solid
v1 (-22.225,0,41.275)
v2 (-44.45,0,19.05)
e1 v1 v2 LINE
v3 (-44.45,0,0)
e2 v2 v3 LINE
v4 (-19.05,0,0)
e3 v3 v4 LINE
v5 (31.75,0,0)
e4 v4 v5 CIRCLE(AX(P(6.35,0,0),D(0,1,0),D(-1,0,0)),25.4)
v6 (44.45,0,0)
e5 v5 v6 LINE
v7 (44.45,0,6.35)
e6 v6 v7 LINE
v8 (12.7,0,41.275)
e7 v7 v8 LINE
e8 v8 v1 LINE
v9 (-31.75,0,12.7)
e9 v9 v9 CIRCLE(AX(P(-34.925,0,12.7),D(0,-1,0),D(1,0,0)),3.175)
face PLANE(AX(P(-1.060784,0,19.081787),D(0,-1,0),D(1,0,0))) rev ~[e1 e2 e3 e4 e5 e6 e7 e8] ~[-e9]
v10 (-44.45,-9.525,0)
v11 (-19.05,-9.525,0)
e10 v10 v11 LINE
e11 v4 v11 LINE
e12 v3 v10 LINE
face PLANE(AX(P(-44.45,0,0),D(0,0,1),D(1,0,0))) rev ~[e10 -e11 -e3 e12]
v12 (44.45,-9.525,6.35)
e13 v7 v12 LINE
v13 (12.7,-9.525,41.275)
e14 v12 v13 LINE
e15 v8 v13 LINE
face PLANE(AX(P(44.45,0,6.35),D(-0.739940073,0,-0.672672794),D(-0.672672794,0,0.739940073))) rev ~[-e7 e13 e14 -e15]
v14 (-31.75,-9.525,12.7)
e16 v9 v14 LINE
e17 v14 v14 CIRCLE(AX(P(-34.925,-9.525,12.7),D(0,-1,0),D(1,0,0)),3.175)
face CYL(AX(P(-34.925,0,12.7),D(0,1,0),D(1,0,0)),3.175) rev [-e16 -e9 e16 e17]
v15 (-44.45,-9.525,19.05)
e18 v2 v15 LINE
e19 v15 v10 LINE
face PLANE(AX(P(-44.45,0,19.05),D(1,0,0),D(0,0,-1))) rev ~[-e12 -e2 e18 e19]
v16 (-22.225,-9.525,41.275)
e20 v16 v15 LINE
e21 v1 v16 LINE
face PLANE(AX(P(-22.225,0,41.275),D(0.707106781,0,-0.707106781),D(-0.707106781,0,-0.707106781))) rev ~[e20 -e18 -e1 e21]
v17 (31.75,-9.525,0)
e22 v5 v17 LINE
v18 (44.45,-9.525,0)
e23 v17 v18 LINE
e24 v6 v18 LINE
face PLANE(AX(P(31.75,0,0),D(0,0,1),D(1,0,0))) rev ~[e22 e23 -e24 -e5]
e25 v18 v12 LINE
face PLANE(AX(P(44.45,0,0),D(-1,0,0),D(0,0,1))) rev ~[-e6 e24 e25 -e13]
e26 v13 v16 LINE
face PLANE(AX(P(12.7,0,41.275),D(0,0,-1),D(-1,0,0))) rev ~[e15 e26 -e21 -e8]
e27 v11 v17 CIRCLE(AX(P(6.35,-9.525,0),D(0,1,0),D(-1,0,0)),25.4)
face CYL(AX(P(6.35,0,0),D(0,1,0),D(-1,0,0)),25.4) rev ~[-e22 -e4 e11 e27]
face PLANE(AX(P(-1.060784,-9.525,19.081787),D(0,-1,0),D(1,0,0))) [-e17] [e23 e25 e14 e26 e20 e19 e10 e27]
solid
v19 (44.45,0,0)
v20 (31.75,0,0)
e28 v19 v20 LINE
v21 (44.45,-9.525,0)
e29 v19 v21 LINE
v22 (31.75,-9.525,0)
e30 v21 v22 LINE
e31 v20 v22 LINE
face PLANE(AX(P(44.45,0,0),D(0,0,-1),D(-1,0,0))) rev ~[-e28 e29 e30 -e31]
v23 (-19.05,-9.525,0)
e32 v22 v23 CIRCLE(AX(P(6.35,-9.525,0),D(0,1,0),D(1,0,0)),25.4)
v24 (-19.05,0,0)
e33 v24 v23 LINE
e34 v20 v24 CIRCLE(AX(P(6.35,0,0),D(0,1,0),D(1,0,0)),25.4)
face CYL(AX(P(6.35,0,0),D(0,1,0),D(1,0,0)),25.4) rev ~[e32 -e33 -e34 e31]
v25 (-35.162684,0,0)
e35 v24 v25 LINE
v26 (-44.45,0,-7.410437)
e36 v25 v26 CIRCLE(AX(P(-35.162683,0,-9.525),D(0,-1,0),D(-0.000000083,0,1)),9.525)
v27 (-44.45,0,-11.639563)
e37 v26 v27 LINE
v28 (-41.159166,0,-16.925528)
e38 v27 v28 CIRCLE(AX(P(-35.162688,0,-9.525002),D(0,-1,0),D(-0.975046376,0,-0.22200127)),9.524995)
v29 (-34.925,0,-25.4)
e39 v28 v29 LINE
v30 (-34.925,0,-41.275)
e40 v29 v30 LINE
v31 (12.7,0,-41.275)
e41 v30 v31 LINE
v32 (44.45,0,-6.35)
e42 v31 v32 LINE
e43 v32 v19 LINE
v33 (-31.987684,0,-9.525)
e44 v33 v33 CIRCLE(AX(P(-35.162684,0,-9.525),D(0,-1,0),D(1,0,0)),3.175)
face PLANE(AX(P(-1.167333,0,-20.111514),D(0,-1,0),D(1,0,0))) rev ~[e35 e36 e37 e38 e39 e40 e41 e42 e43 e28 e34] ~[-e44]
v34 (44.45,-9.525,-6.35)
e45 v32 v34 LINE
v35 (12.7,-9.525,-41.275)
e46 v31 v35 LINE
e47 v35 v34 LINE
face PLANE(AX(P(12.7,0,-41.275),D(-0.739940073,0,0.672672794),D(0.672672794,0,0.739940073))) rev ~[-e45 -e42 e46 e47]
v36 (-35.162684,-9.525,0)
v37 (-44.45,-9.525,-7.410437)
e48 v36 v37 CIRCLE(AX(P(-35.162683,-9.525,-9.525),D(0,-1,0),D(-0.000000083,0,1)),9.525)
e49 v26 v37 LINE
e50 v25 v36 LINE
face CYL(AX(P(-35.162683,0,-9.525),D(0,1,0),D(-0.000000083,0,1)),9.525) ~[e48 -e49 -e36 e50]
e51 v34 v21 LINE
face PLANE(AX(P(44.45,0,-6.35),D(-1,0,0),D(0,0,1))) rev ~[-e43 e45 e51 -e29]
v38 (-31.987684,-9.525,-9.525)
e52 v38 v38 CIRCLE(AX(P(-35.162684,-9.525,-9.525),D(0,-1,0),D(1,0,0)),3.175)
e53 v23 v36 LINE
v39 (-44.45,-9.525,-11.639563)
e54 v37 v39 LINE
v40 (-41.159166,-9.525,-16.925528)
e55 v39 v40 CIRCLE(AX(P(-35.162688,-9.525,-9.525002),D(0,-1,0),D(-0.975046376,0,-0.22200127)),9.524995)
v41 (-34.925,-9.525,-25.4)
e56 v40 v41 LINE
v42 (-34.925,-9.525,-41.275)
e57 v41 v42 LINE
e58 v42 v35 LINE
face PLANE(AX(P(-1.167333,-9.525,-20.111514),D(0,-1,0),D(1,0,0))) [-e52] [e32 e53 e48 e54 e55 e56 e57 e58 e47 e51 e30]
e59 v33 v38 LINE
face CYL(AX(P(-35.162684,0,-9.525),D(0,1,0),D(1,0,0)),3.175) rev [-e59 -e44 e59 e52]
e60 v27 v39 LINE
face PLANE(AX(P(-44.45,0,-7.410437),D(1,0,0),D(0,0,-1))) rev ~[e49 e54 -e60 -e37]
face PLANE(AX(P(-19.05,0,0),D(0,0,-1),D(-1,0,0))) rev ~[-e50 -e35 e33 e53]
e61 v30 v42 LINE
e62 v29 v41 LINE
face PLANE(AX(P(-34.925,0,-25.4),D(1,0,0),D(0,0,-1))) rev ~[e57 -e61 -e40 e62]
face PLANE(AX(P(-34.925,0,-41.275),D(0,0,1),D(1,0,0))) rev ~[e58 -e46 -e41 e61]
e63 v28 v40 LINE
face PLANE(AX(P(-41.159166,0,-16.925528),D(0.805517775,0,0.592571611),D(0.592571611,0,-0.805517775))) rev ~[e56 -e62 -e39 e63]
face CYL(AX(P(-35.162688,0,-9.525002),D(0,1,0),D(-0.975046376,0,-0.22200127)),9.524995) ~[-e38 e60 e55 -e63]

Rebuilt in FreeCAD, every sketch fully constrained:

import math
import FreeCAD as App
import Part
import Sketcher

V = App.Vector
Q = App.Units.Quantity

doc = App.newDocument("Part")
params = doc.addObject("Spreadsheet::Sheet", "Params")
for row, (alias, value) in enumerate([
    ("sketch1_radius", "1 in"),
    ("sketch1_diameter", "0.25 in"),
    ("sketch1_width", "1 in"),
    ("sketch1_width2", "0.5 in"),
    ("sketch1_height", "0.75 in"),
    ("pad1_length", "0.375 in"),
    ("sketch2_radius", "1 in"),
    ("sketch2_diameter", "0.25 in"),
    ("sketch2_width", "0.5 in"),
    ("sketch2_radius2", "0.375 in"),
    ("sketch2_radius3", "0.3749998 in"),
    ("pad2_length", "0.375 in"),
], start=1):
    params.set(f"A{row}", alias)
    params.set(f"B{row}", "=" + value)
    params.setAlias(f"B{row}", alias)

body = doc.addObject("PartDesign::Body", "Body")

# Sketch on XZ plane
sketch1 = doc.addObject("Sketcher::SketchObject", "Sketch")
body.addObject(sketch1)
sketch1.AttachmentSupport = (doc.XZ_Plane, [""])
sketch1.MapMode = "FlatFace"
sketch1.addGeometry([
    Part.LineSegment(V(12.7, 41.275, 0), V(-22.225, 41.275, 0)),  # 0
    Part.LineSegment(V(-22.225, 41.275, 0), V(-44.45, 19.05, 0)),  # 1
    Part.LineSegment(V(-44.45, 19.05, 0), V(-44.45, 0, 0)),  # 2
    Part.LineSegment(V(-44.45, 0, 0), V(-19.05, 0, 0)),  # 3
    Part.ArcOfCircle(Part.Circle(V(6.35, 0, 0), V(0, 0, 1), 25.4), math.radians(0), math.radians(180)),  # 4
    Part.LineSegment(V(31.75, 0, 0), V(44.45, 0, 0)),  # 5
    Part.LineSegment(V(44.45, 0, 0), V(44.45, 6.35, 0)),  # 6
    Part.LineSegment(V(44.45, 6.35, 0), V(12.7, 41.275, 0)),  # 7
    Part.Circle(V(-34.925, 12.7, 0), V(0, 0, 1), 3.175),  # 8
], False)
sketch1.addConstraint([
    Sketcher.Constraint("Coincident", 0, 2, 1, 1),
    Sketcher.Constraint("Coincident", 1, 2, 2, 1),
    Sketcher.Constraint("Coincident", 2, 2, 3, 1),
    Sketcher.Constraint("Coincident", 3, 2, 4, 2),
    Sketcher.Constraint("Coincident", 4, 1, 5, 1),
    Sketcher.Constraint("Coincident", 5, 2, 6, 1),
    Sketcher.Constraint("Coincident", 6, 2, 7, 1),
    Sketcher.Constraint("Coincident", 7, 2, 0, 1),
    Sketcher.Constraint("Horizontal", 0),
    Sketcher.Constraint("Vertical", 2),
    Sketcher.Constraint("Horizontal", 3),
    Sketcher.Constraint("Horizontal", 5),
    Sketcher.Constraint("Vertical", 6),
    Sketcher.Constraint("Symmetric", 2, 2, 5, 2, -1, 1),
    Sketcher.Constraint("PointOnObject", 4, 3, -1),
    Sketcher.Constraint("PointOnObject", 2, 2, -1),
    Sketcher.Constraint("Radius", 4, Q("1 in")),
    Sketcher.Constraint("Diameter", 8, Q("0.25 in")),
    Sketcher.Constraint("DistanceX", 3, 1, 3, 2, Q("1 in")),
    Sketcher.Constraint("DistanceX", 5, 1, 5, 2, Q("0.5 in")),
    Sketcher.Constraint("Angle", 1, Q("-135 deg")),
    Sketcher.Constraint("DistanceY", 2, 2, 2, 1, Q("0.75 in")),
    Sketcher.Constraint("DistanceY", 6, 1, 6, 2, Q("0.25 in")),
    Sketcher.Constraint("DistanceY", -1, 1, 8, 3, Q("0.5 in")),
    Sketcher.Constraint("DistanceX", -1, 1, 7, 2, Q("0.5 in")),
    Sketcher.Constraint("DistanceX", 8, 3, 0, 2, Q("0.5 in")),
    Sketcher.Constraint("DistanceX", 0, 2, 0, 1, Q("1.375 in")),
])
sketch1.setExpression("Constraints[16]", "Params.sketch1_radius")
sketch1.setExpression("Constraints[17]", "Params.sketch1_diameter")
sketch1.setExpression("Constraints[18]", "Params.sketch1_width")
sketch1.setExpression("Constraints[19]", "Params.sketch1_width2")
sketch1.setExpression("Constraints[21]", "Params.sketch1_height")
pad1 = doc.addObject("PartDesign::Pad", "Pad")
body.addObject(pad1)
pad1.Profile = sketch1
pad1.setExpression("Length", "Params.pad1_length")
body2 = doc.addObject("PartDesign::Body", "Body001")

# Sketch on XZ plane
sketch2 = doc.addObject("Sketcher::SketchObject", "Sketch001")
body2.addObject(sketch2)
sketch2.AttachmentSupport = (doc.getObject("XZ_Plane001"), [""])
sketch2.MapMode = "FlatFace"
sketch2.addGeometry([
    Part.LineSegment(V(44.45, -6.35, 0), V(44.45, 0, 0)),  # 0
    Part.LineSegment(V(44.45, 0, 0), V(31.75, 0, 0)),  # 1
    Part.ArcOfCircle(Part.Circle(V(6.35, 0, 0), V(0, 0, 1), 25.4), math.radians(180), math.radians(360)),  # 2
    Part.LineSegment(V(-19.05, 0, 0), V(-35.162684, 0, 0)),  # 3
    Part.ArcOfCircle(Part.Circle(V(-35.162683, -9.525, 0), V(0, 0, 1), 9.525), math.radians(90.000005), math.radians(167.173388)),  # 4
    Part.LineSegment(V(-44.45, -7.410437, 0), V(-44.45, -11.639563, 0)),  # 5
    Part.ArcOfCircle(Part.Circle(V(-35.162688, -9.525002, 0), V(0, 0, 1), 9.524995), math.radians(-167.173396), math.radians(-129.017065)),  # 6
    Part.LineSegment(V(-41.159166, -16.925528, 0), V(-34.925, -25.4, 0)),  # 7
    Part.LineSegment(V(-34.925, -25.4, 0), V(-34.925, -41.275, 0)),  # 8
    Part.LineSegment(V(-34.925, -41.275, 0), V(12.7, -41.275, 0)),  # 9
    Part.LineSegment(V(12.7, -41.275, 0), V(44.45, -6.35, 0)),  # 10
    Part.Circle(V(-35.162684, -9.525, 0), V(0, 0, 1), 3.175),  # 11
], False)
sketch2.addConstraint([
    Sketcher.Constraint("Coincident", 0, 2, 1, 1),
    Sketcher.Constraint("Coincident", 1, 2, 2, 2),
    Sketcher.Constraint("Coincident", 2, 1, 3, 1),
    Sketcher.Constraint("Coincident", 3, 2, 4, 1),
    Sketcher.Constraint("Coincident", 4, 2, 5, 1),
    Sketcher.Constraint("Coincident", 5, 2, 6, 1),
    Sketcher.Constraint("Coincident", 6, 2, 7, 1),
    Sketcher.Constraint("Coincident", 7, 2, 8, 1),
    Sketcher.Constraint("Coincident", 8, 2, 9, 1),
    Sketcher.Constraint("Coincident", 9, 2, 10, 1),
    Sketcher.Constraint("Coincident", 10, 2, 0, 1),
    Sketcher.Constraint("Vertical", 0),
    Sketcher.Constraint("Horizontal", 1),
    Sketcher.Constraint("Horizontal", 3),
    Sketcher.Constraint("Vertical", 5),
    Sketcher.Constraint("Vertical", 8),
    Sketcher.Constraint("Horizontal", 9),
    Sketcher.Constraint("Coincident", 6, 3, 4, 3),
    Sketcher.Constraint("Coincident", 11, 3, 4, 3),
    Sketcher.Constraint("PointOnObject", 2, 3, -1),
    Sketcher.Constraint("PointOnObject", 0, 2, -1),
    Sketcher.Constraint("PointOnObject", 2, 1, -1),
    Sketcher.Constraint("Radius", 2, Q("1 in")),
    Sketcher.Constraint("Diameter", 11, Q("0.25 in")),
    Sketcher.Constraint("DistanceX", 1, 2, 1, 1, Q("0.5 in")),
    Sketcher.Constraint("DistanceY", 7, 2, -1, 1, Q("1 in")),
    Sketcher.Constraint("Radius", 4, Q("0.375 in")),
    Sketcher.Constraint("Radius", 6, Q("0.3749998 in")),
    Sketcher.Constraint("DistanceX", 4, 2, 2, 1, Q("1 in")),
    Sketcher.Constraint("DistanceY", 0, 1, 0, 2, Q("0.25 in")),
    Sketcher.Constraint("DistanceX", -1, 1, 9, 2, Q("0.5 in")),
    Sketcher.Constraint("DistanceX", 9, 1, 9, 2, Q("1.875 in")),
    Sketcher.Constraint("DistanceY", 8, 2, 8, 1, Q("0.625 in")),
    Sketcher.Constraint("DistanceX", -1, 1, 2, 3, Q("0.25 in")),
    Sketcher.Constraint("DistanceX", 3, 2, 3, 1, Q("16.112684 mm")),
    Sketcher.Constraint("DistanceY", 5, 2, 5, 1, Q("4.229126 mm")),
    Sketcher.Constraint("DistanceX", 6, 2, 6, 3, Q("5.996478 mm")),
])
sketch2.setExpression("Constraints[22]", "Params.sketch2_radius")
sketch2.setExpression("Constraints[23]", "Params.sketch2_diameter")
sketch2.setExpression("Constraints[24]", "Params.sketch2_width")
sketch2.setExpression("Constraints[26]", "Params.sketch2_radius2")
sketch2.setExpression("Constraints[27]", "Params.sketch2_radius3")
pad2 = doc.addObject("PartDesign::Pad", "Pad001")
body2.addObject(pad2)
pad2.Profile = sketch2
pad2.setExpression("Length", "Params.pad2_length")

doc.recompute()
